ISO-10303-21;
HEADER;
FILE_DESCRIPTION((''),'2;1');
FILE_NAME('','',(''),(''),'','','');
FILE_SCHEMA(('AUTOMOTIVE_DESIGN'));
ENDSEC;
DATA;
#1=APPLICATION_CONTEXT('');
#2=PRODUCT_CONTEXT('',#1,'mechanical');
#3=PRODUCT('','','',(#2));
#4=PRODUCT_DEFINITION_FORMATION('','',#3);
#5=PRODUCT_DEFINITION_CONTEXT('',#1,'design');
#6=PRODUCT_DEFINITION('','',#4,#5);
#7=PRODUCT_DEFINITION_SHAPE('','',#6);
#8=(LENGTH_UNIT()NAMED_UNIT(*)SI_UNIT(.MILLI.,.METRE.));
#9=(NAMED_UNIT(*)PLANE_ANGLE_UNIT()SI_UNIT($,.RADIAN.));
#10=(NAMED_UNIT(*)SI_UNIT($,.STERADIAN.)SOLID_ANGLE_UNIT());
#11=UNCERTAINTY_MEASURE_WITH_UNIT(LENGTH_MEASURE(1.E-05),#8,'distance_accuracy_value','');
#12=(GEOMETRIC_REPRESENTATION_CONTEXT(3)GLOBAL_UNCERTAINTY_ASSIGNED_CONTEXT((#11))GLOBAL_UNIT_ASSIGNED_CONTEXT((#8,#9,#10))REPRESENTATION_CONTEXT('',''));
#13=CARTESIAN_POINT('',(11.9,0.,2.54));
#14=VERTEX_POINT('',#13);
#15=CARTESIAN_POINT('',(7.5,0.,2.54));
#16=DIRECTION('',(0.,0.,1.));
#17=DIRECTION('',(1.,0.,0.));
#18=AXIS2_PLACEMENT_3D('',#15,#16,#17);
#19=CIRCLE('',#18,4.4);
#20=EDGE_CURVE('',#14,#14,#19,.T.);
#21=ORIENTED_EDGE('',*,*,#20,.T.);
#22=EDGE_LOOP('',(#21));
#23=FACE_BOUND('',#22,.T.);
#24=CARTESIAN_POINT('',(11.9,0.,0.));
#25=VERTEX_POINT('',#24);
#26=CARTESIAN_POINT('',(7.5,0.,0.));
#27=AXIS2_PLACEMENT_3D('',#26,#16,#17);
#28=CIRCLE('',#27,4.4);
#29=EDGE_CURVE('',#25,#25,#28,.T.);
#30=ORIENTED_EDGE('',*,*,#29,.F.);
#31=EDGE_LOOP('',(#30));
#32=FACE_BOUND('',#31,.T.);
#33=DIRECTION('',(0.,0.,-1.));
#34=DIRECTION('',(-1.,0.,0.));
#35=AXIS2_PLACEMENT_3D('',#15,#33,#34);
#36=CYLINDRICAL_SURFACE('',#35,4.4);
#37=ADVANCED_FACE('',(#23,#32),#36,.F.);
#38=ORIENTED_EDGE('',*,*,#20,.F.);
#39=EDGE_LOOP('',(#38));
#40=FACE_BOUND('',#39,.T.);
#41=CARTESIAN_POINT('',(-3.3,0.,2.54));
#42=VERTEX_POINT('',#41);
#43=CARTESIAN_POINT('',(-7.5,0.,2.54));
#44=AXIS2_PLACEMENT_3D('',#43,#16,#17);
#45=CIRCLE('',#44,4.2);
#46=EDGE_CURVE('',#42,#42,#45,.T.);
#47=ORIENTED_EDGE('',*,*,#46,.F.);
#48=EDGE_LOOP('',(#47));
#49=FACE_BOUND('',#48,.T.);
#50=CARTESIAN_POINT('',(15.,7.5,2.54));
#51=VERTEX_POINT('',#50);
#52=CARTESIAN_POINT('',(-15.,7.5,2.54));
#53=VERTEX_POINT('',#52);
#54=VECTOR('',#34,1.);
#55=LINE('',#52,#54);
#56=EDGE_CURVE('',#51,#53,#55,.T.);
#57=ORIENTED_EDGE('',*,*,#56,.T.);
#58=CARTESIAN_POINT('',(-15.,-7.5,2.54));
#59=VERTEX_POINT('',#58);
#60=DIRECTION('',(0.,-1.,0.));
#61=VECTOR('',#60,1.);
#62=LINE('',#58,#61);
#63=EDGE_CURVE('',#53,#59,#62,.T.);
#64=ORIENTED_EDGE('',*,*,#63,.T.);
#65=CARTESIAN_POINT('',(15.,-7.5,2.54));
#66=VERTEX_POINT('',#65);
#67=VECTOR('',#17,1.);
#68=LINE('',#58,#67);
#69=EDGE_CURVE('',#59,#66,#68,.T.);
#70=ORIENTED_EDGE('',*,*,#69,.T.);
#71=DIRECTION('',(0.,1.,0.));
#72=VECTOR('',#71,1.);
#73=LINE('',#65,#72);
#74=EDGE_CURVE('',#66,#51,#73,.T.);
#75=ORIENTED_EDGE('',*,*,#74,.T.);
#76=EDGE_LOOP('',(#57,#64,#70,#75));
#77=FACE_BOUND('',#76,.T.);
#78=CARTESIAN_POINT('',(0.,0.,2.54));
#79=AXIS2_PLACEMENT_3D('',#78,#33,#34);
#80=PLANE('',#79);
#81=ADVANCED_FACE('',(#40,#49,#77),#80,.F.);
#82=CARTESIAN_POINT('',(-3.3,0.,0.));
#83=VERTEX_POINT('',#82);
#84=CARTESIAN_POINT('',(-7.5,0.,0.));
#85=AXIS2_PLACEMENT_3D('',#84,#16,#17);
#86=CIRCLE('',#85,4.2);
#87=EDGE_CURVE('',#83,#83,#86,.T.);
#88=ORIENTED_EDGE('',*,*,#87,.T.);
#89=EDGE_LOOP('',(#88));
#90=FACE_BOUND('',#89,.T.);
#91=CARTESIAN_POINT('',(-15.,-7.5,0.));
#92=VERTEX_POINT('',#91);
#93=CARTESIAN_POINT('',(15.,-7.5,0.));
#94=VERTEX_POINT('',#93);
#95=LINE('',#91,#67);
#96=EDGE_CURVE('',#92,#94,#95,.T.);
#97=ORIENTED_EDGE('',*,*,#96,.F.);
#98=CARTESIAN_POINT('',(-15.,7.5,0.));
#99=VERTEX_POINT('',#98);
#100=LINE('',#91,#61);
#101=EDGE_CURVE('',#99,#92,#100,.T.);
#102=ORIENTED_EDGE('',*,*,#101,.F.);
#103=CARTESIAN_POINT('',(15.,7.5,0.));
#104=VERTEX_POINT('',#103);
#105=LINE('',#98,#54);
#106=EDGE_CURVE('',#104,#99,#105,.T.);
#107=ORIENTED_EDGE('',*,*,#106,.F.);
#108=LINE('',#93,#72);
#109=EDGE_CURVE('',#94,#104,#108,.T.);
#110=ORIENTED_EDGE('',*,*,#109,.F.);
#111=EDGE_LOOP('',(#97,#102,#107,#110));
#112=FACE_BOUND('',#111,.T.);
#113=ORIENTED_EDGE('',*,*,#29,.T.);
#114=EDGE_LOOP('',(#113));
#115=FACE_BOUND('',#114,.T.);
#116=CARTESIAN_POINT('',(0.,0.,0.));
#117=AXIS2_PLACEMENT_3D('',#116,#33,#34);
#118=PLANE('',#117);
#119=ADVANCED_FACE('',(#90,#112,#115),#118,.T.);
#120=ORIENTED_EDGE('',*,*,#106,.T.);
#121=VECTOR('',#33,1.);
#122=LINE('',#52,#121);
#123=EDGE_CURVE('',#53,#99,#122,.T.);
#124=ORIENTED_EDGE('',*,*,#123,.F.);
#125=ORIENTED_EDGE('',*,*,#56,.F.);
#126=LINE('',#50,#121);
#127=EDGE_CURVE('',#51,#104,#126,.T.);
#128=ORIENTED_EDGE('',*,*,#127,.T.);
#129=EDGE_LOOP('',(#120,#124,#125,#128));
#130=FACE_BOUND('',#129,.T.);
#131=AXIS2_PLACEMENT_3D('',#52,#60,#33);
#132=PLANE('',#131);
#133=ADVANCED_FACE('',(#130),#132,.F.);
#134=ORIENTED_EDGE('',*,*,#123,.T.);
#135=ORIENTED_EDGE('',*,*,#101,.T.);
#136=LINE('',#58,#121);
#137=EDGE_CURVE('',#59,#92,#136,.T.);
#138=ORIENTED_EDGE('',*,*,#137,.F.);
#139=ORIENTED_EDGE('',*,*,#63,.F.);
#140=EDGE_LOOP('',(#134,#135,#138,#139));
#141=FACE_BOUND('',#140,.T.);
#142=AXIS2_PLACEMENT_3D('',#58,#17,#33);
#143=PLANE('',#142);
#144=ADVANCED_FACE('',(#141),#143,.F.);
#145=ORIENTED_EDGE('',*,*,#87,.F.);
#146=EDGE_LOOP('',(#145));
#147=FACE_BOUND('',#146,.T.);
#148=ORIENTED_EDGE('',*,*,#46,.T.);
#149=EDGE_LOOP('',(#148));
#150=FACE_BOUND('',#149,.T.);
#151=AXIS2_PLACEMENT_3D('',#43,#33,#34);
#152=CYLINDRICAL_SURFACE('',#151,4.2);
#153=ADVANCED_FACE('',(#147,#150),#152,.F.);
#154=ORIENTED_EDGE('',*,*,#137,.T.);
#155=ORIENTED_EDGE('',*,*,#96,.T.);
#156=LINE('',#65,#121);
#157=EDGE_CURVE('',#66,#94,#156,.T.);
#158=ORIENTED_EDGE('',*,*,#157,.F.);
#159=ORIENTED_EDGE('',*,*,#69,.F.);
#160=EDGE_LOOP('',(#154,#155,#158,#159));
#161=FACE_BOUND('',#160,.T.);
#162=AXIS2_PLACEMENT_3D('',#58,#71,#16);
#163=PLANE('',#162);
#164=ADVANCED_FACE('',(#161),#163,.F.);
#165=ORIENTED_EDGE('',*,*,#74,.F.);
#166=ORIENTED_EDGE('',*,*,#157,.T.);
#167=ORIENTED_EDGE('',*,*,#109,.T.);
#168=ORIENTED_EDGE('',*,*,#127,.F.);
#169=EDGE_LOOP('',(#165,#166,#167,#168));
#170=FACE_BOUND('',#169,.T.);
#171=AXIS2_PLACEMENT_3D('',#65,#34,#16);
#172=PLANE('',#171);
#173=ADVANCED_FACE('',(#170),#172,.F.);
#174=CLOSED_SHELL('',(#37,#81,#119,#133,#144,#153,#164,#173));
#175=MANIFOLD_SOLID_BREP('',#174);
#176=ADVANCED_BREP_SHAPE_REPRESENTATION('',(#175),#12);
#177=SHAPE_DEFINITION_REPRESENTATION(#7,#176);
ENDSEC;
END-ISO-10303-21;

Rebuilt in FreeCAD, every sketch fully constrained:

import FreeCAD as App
import Part
import Sketcher

doc = App.newDocument("Part")
body = doc.addObject("PartDesign::Body", "Body")

# Sketch on XY plane
sketch1 = body.newObject("Sketcher::SketchObject", "Sketch")
sketch1.AttachmentSupport = (doc.getObject("XY_Plane"), [""])
sketch1.MapMode = "FlatFace"
sketch1.addGeometry(Part.LineSegment(App.Vector(-15, 7.5, 0), App.Vector(-15, -7.5, 0)), False)
sketch1.addGeometry(Part.LineSegment(App.Vector(-15, -7.5, 0), App.Vector(15, -7.5, 0)), False)
sketch1.addGeometry(Part.LineSegment(App.Vector(15, -7.5, 0), App.Vector(15, 7.5, 0)), False)
sketch1.addGeometry(Part.LineSegment(App.Vector(15, 7.5, 0), App.Vector(-15, 7.5, 0)), False)
sketch1.addGeometry(Part.Circle(App.Vector(-7.5, 0, 0), App.Vector(0, 0, 1), 4.2), False)
sketch1.addGeometry(Part.Circle(App.Vector(7.5, 0, 0), App.Vector(0, 0, 1), 4.4), False)
sketch1.addConstraint(Sketcher.Constraint("Coincident", 0, 2, 1, 1))
sketch1.addConstraint(Sketcher.Constraint("Coincident", 1, 2, 2, 1))
sketch1.addConstraint(Sketcher.Constraint("Coincident", 2, 2, 3, 1))
sketch1.addConstraint(Sketcher.Constraint("Coincident", 3, 2, 0, 1))
sketch1.addConstraint(Sketcher.Constraint("Vertical", 0))
sketch1.addConstraint(Sketcher.Constraint("Horizontal", 1))
sketch1.addConstraint(Sketcher.Constraint("Vertical", 2))
sketch1.addConstraint(Sketcher.Constraint("Horizontal", 3))
sketch1.addConstraint(Sketcher.Constraint("Symmetric", 4, 3, 5, 3, -1, 1))
sketch1.addConstraint(Sketcher.Constraint("Symmetric", 0, 2, 2, 2, -1, 1))
sketch1.addConstraint(Sketcher.Constraint("PointOnObject", 4, 3, -1))
sketch1.addConstraint(Sketcher.Constraint("Diameter", 4, 8.4))
sketch1.addConstraint(Sketcher.Constraint("Diameter", 5, 8.8))
sketch1.addConstraint(Sketcher.Constraint("DistanceX", 1, 1, 1, 2, 30.0))
sketch1.addConstraint(Sketcher.Constraint("DistanceY", 0, 2, 0, 1, 15.0))
sketch1.addConstraint(Sketcher.Constraint("DistanceX", 4, 3, 5, 3, 15.0))
pad1 = body.newObject("PartDesign::Pad", "Pad")
pad1.Profile = sketch1
pad1.Length = 2.54

doc.recompute()
